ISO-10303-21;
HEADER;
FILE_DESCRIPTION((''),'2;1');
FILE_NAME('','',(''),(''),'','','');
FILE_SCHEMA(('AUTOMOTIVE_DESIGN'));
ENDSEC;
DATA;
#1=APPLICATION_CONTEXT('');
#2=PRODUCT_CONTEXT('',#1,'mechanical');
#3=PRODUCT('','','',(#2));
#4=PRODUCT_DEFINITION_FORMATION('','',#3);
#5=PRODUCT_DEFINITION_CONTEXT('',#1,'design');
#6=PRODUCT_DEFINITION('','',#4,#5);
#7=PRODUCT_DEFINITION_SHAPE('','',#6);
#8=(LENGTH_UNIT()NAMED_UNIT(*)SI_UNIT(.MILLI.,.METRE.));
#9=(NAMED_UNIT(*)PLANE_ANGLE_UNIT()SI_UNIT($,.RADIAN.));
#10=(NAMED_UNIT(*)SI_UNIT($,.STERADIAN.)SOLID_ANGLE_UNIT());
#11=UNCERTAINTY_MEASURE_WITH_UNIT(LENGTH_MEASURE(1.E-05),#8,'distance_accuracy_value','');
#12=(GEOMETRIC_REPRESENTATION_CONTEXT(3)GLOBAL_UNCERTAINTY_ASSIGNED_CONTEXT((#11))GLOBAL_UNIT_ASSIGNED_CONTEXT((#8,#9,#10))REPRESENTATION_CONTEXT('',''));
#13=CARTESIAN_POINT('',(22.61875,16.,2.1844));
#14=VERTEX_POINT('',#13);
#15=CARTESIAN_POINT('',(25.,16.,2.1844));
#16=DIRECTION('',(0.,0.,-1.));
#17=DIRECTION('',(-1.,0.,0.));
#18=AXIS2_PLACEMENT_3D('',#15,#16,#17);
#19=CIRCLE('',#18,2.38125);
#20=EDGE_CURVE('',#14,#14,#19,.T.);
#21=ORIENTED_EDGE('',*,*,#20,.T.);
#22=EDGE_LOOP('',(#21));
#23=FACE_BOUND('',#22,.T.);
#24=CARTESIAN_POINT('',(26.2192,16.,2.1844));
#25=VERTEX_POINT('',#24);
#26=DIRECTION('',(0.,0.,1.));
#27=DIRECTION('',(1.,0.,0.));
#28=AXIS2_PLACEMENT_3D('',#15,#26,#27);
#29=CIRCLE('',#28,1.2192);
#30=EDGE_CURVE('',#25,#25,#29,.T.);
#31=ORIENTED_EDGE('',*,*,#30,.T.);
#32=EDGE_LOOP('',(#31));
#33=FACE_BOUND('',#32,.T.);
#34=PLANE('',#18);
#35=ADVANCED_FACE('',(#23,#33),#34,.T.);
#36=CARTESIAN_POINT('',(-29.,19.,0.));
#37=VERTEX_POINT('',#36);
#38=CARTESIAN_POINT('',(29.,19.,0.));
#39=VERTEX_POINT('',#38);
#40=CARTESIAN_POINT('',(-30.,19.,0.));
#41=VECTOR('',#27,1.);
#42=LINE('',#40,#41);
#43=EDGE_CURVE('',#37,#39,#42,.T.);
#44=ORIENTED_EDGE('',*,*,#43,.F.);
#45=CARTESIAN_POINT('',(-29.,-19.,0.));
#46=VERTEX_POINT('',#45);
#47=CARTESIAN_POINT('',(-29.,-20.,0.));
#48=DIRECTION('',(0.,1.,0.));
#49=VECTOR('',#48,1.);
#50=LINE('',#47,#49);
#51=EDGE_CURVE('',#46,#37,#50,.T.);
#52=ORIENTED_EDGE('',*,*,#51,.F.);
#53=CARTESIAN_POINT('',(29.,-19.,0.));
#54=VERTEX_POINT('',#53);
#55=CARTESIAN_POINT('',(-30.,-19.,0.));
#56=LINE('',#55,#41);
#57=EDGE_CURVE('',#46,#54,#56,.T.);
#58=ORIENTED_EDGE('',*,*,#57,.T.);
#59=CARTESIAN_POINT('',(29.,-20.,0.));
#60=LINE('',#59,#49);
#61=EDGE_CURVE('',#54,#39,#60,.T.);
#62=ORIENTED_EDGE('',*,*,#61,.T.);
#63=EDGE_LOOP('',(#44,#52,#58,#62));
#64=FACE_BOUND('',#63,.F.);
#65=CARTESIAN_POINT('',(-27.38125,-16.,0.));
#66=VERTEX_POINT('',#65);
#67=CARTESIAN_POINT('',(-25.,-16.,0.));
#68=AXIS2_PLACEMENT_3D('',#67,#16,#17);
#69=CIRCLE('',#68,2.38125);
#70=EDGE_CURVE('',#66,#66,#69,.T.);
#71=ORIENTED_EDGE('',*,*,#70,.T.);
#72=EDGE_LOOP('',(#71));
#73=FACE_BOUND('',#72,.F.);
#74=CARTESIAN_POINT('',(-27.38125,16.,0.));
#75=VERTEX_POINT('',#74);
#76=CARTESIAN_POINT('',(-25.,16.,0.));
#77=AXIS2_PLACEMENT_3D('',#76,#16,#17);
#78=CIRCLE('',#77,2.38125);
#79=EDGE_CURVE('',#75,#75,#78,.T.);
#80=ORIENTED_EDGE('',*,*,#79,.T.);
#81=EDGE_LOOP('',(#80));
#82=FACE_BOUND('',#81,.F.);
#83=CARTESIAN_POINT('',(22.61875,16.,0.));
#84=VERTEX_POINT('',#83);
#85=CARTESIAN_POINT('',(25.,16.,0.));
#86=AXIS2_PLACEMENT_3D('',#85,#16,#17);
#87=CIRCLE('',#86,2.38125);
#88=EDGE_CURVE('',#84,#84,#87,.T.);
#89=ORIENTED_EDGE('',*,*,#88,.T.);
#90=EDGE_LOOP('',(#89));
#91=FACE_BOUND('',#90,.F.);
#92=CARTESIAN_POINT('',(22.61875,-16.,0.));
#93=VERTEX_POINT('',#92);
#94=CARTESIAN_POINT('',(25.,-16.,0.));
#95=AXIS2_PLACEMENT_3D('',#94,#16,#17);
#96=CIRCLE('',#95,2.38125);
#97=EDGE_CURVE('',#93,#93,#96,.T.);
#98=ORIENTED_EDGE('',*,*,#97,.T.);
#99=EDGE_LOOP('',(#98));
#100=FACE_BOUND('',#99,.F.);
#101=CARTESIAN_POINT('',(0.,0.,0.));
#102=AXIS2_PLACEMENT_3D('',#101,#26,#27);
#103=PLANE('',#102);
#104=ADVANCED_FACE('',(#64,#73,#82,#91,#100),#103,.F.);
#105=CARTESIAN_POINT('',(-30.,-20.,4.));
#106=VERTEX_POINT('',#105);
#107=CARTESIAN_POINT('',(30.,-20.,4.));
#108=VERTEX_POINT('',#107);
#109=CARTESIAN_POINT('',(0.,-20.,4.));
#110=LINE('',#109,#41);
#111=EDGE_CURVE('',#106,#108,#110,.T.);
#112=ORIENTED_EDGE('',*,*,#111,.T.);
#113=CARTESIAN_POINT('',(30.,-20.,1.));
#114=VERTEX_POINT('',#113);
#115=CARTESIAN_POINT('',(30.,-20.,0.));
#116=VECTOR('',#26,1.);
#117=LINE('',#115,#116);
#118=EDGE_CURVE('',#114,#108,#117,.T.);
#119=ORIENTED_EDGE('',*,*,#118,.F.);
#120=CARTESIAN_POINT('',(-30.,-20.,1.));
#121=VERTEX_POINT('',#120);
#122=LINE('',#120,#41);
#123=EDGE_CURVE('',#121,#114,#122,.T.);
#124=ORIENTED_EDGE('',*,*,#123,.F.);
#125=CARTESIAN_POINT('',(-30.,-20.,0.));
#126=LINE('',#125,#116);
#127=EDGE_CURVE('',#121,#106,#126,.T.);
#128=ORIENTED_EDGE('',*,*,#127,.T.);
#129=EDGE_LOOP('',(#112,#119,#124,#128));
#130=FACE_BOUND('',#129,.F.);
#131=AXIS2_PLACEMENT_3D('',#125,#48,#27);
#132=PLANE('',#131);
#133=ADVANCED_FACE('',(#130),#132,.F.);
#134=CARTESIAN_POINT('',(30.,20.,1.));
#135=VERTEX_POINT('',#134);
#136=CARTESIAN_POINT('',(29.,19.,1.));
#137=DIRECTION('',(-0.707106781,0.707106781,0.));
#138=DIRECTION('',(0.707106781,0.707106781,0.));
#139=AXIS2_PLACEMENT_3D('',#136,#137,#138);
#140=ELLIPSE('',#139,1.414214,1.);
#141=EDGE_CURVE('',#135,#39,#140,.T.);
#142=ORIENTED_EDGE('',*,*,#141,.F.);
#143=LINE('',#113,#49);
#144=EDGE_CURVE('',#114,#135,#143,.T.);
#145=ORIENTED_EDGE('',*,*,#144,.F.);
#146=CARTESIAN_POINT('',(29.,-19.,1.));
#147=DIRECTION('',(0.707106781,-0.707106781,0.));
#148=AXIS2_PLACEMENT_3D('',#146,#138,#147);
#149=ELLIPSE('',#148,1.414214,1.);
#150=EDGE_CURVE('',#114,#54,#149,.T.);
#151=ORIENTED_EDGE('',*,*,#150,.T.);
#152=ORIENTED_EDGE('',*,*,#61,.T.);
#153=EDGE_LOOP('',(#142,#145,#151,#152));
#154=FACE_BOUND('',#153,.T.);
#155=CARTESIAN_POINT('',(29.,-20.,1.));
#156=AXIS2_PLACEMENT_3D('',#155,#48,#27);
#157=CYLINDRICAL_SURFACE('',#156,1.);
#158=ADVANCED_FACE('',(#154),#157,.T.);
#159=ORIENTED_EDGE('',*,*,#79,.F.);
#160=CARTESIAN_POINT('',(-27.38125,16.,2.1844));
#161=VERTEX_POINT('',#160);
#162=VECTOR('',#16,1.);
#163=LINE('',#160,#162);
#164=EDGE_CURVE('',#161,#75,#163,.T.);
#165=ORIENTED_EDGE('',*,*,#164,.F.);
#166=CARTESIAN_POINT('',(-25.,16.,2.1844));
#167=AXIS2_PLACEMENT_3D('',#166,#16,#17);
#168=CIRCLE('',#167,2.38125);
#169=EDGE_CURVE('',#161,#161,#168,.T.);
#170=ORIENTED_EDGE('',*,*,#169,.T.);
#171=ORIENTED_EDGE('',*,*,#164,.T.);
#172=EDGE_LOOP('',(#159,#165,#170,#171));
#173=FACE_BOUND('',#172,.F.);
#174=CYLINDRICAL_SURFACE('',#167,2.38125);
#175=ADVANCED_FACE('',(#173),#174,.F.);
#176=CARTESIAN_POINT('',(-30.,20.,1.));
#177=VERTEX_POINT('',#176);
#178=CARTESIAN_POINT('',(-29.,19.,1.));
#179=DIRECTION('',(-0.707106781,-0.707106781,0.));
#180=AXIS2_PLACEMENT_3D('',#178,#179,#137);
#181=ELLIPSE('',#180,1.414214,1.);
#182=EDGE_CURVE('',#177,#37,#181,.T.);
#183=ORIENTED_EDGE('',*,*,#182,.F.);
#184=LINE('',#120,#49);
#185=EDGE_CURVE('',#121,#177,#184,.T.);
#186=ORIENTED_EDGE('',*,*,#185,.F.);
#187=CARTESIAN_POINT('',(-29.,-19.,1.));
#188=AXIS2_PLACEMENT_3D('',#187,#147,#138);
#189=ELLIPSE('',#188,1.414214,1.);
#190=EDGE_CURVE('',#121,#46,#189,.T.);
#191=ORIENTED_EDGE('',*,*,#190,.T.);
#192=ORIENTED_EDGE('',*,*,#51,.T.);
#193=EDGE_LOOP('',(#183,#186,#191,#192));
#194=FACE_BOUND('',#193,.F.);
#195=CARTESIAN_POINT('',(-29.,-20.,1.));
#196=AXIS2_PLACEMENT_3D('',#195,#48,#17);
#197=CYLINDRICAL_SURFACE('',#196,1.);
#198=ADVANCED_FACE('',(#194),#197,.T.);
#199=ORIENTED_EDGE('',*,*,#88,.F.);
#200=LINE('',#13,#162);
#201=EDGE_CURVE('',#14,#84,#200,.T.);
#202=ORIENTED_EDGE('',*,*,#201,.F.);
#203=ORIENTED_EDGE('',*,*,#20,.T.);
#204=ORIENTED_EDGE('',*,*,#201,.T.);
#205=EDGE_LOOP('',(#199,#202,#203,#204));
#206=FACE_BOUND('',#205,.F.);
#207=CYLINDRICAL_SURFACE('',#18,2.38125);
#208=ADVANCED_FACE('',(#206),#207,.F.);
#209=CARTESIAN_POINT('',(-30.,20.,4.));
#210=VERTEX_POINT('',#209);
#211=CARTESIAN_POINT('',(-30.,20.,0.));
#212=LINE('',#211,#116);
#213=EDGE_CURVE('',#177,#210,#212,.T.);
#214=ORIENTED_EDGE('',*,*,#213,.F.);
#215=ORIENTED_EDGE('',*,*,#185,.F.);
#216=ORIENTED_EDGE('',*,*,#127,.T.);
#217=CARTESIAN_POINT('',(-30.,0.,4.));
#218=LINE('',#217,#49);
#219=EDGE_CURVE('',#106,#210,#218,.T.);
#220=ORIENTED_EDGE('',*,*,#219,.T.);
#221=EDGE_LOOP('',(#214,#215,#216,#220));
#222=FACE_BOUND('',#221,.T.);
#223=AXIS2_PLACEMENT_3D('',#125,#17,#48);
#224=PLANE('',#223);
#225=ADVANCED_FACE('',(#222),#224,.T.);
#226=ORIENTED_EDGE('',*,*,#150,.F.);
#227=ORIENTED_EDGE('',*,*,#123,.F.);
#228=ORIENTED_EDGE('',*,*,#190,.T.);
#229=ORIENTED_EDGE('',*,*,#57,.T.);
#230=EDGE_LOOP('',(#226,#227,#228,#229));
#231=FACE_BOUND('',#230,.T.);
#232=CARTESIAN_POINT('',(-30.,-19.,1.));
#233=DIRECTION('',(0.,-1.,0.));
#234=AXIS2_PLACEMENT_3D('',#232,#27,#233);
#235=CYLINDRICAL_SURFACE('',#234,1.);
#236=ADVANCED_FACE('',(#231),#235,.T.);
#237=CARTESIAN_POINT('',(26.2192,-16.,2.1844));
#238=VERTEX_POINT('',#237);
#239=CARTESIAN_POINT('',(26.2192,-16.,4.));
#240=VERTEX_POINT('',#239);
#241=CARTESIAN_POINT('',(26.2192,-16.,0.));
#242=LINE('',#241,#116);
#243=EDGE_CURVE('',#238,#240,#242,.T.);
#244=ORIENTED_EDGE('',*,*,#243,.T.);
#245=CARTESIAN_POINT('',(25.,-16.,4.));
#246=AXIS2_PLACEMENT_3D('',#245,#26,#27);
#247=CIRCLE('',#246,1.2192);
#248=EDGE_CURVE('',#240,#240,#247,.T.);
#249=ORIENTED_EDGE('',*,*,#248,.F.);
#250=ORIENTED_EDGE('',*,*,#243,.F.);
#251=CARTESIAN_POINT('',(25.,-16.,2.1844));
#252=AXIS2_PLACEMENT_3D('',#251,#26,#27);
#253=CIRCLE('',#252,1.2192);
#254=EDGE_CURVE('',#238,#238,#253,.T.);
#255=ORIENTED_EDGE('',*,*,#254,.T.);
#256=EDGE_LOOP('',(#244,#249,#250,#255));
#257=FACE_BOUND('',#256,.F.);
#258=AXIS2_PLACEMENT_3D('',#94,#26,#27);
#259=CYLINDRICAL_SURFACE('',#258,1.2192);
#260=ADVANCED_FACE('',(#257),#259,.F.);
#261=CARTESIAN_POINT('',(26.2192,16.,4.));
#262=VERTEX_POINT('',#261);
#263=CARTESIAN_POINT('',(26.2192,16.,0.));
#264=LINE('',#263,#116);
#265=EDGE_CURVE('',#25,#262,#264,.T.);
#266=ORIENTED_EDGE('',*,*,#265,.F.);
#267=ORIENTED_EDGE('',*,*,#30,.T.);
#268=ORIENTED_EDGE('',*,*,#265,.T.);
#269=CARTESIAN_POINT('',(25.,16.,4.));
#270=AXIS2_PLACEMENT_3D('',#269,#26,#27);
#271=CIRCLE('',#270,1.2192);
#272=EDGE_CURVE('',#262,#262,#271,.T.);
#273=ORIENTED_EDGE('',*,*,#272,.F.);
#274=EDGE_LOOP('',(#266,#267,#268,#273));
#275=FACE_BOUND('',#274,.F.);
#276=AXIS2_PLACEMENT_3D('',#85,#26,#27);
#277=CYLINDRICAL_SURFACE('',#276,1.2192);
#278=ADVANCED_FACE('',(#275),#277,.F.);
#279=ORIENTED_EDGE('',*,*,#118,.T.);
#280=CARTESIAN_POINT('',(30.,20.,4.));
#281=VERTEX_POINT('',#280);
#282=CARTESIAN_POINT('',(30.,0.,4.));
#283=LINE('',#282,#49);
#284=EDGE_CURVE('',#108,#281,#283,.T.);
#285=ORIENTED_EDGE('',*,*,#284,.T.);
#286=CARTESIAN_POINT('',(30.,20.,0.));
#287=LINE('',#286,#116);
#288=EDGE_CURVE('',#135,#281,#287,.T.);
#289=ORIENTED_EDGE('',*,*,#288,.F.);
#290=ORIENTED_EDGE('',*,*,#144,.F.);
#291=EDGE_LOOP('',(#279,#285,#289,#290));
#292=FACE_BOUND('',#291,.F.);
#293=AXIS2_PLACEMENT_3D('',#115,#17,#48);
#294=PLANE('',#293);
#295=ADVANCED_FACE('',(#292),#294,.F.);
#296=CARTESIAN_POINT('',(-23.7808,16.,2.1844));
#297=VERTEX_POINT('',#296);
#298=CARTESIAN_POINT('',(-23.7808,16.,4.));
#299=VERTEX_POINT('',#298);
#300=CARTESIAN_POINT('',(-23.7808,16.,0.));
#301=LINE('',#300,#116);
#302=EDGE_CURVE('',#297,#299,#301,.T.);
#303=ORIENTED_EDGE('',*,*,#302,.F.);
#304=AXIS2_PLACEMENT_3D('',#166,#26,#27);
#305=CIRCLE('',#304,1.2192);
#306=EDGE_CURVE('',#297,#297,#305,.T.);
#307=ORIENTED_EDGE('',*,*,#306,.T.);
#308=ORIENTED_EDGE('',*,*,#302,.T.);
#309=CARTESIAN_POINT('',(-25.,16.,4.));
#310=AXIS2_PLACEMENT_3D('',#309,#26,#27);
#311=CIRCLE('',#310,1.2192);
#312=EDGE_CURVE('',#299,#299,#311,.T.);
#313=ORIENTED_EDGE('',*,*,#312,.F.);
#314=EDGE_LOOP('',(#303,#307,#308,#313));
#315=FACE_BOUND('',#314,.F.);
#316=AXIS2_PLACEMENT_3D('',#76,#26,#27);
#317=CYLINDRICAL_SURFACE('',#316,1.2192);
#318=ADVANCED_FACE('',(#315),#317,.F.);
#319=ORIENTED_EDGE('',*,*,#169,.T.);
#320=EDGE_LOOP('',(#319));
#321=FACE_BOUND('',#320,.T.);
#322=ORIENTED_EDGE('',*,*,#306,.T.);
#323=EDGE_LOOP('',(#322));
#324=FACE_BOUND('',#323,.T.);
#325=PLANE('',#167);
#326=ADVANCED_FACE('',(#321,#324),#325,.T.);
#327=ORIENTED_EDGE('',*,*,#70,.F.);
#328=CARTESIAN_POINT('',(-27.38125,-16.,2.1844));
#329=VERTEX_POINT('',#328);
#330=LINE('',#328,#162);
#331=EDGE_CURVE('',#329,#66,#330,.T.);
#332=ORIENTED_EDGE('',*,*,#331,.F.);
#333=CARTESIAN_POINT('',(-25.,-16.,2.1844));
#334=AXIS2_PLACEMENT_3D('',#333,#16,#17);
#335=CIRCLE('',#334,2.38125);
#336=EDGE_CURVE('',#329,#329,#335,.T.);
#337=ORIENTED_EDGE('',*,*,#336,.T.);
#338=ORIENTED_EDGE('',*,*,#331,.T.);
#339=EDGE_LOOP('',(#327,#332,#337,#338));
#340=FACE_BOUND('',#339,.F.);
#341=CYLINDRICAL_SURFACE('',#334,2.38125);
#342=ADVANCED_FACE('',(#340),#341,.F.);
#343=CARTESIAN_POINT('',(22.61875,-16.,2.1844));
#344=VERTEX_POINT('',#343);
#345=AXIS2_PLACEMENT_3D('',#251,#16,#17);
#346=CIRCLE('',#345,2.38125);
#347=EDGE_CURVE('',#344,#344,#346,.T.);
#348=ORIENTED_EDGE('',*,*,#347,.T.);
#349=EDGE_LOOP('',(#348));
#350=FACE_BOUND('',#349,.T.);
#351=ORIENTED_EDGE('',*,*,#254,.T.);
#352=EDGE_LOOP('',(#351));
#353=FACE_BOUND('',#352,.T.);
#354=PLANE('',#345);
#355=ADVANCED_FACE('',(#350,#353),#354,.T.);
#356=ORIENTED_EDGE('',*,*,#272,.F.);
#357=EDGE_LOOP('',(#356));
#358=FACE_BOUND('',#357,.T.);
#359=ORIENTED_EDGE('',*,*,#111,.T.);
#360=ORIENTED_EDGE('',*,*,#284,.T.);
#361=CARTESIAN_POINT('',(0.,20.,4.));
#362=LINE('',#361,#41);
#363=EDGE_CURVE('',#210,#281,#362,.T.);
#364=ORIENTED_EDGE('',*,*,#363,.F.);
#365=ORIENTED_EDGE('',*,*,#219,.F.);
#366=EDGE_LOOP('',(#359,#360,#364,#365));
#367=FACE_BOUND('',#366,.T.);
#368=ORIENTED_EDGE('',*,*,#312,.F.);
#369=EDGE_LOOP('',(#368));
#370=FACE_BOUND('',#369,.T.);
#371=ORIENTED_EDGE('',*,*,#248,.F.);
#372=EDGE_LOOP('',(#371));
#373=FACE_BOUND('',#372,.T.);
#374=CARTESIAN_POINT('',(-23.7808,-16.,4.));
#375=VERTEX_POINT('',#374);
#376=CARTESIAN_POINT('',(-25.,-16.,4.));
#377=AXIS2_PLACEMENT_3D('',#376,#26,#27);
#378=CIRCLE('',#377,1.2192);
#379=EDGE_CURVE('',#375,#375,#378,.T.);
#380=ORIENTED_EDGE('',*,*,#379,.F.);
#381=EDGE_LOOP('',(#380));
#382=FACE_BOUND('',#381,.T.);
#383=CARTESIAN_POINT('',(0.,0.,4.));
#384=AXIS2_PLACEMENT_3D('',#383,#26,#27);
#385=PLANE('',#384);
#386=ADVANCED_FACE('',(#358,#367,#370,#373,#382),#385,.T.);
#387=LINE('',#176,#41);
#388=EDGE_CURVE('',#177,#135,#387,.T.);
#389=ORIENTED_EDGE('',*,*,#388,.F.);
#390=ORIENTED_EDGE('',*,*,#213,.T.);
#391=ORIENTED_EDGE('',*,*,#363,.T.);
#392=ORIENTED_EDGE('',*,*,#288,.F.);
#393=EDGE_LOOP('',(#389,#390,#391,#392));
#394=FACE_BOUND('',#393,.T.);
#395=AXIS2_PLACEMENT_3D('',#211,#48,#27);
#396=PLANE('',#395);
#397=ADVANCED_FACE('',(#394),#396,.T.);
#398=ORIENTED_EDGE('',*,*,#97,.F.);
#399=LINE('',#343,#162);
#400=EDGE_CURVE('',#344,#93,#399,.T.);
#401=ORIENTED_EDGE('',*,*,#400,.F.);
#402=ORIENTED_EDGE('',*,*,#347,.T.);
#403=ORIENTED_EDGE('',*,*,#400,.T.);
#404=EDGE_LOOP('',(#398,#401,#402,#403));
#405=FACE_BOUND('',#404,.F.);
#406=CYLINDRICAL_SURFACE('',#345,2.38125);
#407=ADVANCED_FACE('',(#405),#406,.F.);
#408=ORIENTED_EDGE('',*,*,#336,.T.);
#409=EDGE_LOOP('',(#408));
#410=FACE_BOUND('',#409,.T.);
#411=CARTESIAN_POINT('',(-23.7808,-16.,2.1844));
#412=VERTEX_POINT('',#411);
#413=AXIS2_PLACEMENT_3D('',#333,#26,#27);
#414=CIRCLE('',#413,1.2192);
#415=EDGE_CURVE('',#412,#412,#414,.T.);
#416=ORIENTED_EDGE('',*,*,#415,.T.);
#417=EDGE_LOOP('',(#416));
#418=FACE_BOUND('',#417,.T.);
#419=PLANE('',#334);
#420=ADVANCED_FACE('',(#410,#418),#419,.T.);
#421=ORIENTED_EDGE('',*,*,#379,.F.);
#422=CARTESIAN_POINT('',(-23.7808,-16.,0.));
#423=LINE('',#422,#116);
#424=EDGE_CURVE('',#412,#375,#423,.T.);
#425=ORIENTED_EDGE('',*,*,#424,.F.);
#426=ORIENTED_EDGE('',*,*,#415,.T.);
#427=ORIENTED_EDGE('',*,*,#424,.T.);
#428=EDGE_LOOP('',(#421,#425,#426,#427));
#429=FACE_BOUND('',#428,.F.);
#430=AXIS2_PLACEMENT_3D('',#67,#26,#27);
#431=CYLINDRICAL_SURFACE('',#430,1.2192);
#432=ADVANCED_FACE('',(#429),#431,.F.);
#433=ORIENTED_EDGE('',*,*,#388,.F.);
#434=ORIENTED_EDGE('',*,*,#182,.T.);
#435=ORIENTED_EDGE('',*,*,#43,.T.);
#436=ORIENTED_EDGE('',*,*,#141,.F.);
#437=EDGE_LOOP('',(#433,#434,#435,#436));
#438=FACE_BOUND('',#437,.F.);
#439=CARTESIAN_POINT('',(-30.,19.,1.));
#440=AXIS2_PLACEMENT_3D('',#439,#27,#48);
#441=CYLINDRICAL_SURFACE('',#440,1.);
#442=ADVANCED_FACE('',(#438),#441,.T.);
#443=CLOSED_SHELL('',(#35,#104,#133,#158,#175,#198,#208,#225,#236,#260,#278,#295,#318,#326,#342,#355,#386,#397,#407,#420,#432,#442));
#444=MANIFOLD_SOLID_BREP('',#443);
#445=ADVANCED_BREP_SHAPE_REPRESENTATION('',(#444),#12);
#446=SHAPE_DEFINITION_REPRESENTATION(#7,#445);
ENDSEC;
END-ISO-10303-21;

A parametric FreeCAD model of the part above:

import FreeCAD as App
import Part
import Sketcher
from FreeCAD import Vector


def edges_at(feature, points):
    """Names of the edges that pass closest to the given points."""
    edges = feature.Shape.Edges
    near = lambda p: min(range(len(edges)), key=lambda i: edges[i].distToShape(Part.Vertex(*p))[0])
    return sorted({f"Edge{near(p) + 1}" for p in points})

doc = App.newDocument("Part")
body = doc.addObject("PartDesign::Body", "Body")

# Sketch on XY plane
sketch1 = doc.addObject("Sketcher::SketchObject", "Sketch")
body.addObject(sketch1)
sketch1.AttachmentSupport = (doc.XY_Plane, [""])
sketch1.MapMode = "FlatFace"
sketch1.addGeometry(Part.LineSegment(Vector(-30, 20, 0), Vector(-30, -20, 0)), False)
sketch1.addGeometry(Part.LineSegment(Vector(-30, -20, 0), Vector(30, -20, 0)), False)
sketch1.addGeometry(Part.LineSegment(Vector(30, -20, 0), Vector(30, 20, 0)), False)
sketch1.addGeometry(Part.LineSegment(Vector(30, 20, 0), Vector(-30, 20, 0)), False)
sketch1.addConstraint(Sketcher.Constraint("Coincident", 0, 2, 1, 1))
sketch1.addConstraint(Sketcher.Constraint("Coincident", 1, 2, 2, 1))
sketch1.addConstraint(Sketcher.Constraint("Coincident", 2, 2, 3, 1))
sketch1.addConstraint(Sketcher.Constraint("Coincident", 3, 2, 0, 1))
sketch1.addConstraint(Sketcher.Constraint("Vertical", 0))
sketch1.addConstraint(Sketcher.Constraint("Horizontal", 1))
sketch1.addConstraint(Sketcher.Constraint("Vertical", 2))
sketch1.addConstraint(Sketcher.Constraint("Horizontal", 3))
sketch1.addConstraint(Sketcher.Constraint("Symmetric", 0, 2, 2, 2, -1, 1))
sketch1.addConstraint(Sketcher.Constraint("DistanceX", 1, 1, 1, 2, 60.0))
sketch1.addConstraint(Sketcher.Constraint("DistanceY", 0, 2, 0, 1, 40.0))
pad1 = doc.addObject("PartDesign::Pad", "Pad")
body.addObject(pad1)
pad1.Profile = sketch1
pad1.Length = 4
doc.recompute()

fillet = doc.addObject("PartDesign::Fillet", "Fillet")
body.addObject(fillet)
fillet.Base = (pad1, edges_at(pad1, [
    (0, -20, 0),
    (-30, 0, 0),
    (0, 20, 0),
    (30, 0, 0),
]))
fillet.Radius = 1

# Sketch on XY plane
sketch2 = doc.addObject("Sketcher::SketchObject", "Sketch001")
body.addObject(sketch2)
sketch2.AttachmentSupport = (doc.XY_Plane, [""])
sketch2.MapMode = "FlatFace"
sketch2.addGeometry(Part.Circle(Vector(-25, -16, 0), Vector(0, 0, 1), 1.2), False)
sketch2.addGeometry(Part.Circle(Vector(-25, 16, 0), Vector(0, 0, 1), 1.2), False)
sketch2.addGeometry(Part.Circle(Vector(25, 16, 0), Vector(0, 0, 1), 1.2), False)
sketch2.addGeometry(Part.Circle(Vector(25, -16, 0), Vector(0, 0, 1), 1.2), False)
sketch2.addConstraint(Sketcher.Constraint("Equal", 0, 1))
sketch2.addConstraint(Sketcher.Constraint("Equal", 1, 2))
sketch2.addConstraint(Sketcher.Constraint("Equal", 2, 3))
sketch2.addConstraint(Sketcher.Constraint("Symmetric", 0, 3, 2, 3, -1, 1))
sketch2.addConstraint(Sketcher.Constraint("Symmetric", 1, 3, 3, 3, -1, 1))
sketch2.addConstraint(Sketcher.Constraint("Symmetric", 1, 3, 2, 3, -2))
sketch2.addConstraint(Sketcher.Constraint("DistanceX", 0, 3, -1, 1, 25.0))
sketch2.addConstraint(Sketcher.Constraint("DistanceY", 0, 3, -1, 1, 16.0))
sketch2.addConstraint(Sketcher.Constraint("Diameter", 0, 2.4384))
doc.recompute()
hole = doc.addObject("PartDesign::Hole", "Hole")
body.addObject(hole)
hole.Profile = sketch2
hole.ThreadType = "None"
hole.Diameter = 2.4384
hole.DepthType = "Dimension"
hole.Depth = 15
hole.DrillPoint = "Angled"
hole.DrillPointAngle = 118
hole.HoleCutType = "Counterbore"
hole.HoleCutDiameter = 4.7625
hole.HoleCutDepth = 2.1844
hole.Reversed = True

doc.recompute()
